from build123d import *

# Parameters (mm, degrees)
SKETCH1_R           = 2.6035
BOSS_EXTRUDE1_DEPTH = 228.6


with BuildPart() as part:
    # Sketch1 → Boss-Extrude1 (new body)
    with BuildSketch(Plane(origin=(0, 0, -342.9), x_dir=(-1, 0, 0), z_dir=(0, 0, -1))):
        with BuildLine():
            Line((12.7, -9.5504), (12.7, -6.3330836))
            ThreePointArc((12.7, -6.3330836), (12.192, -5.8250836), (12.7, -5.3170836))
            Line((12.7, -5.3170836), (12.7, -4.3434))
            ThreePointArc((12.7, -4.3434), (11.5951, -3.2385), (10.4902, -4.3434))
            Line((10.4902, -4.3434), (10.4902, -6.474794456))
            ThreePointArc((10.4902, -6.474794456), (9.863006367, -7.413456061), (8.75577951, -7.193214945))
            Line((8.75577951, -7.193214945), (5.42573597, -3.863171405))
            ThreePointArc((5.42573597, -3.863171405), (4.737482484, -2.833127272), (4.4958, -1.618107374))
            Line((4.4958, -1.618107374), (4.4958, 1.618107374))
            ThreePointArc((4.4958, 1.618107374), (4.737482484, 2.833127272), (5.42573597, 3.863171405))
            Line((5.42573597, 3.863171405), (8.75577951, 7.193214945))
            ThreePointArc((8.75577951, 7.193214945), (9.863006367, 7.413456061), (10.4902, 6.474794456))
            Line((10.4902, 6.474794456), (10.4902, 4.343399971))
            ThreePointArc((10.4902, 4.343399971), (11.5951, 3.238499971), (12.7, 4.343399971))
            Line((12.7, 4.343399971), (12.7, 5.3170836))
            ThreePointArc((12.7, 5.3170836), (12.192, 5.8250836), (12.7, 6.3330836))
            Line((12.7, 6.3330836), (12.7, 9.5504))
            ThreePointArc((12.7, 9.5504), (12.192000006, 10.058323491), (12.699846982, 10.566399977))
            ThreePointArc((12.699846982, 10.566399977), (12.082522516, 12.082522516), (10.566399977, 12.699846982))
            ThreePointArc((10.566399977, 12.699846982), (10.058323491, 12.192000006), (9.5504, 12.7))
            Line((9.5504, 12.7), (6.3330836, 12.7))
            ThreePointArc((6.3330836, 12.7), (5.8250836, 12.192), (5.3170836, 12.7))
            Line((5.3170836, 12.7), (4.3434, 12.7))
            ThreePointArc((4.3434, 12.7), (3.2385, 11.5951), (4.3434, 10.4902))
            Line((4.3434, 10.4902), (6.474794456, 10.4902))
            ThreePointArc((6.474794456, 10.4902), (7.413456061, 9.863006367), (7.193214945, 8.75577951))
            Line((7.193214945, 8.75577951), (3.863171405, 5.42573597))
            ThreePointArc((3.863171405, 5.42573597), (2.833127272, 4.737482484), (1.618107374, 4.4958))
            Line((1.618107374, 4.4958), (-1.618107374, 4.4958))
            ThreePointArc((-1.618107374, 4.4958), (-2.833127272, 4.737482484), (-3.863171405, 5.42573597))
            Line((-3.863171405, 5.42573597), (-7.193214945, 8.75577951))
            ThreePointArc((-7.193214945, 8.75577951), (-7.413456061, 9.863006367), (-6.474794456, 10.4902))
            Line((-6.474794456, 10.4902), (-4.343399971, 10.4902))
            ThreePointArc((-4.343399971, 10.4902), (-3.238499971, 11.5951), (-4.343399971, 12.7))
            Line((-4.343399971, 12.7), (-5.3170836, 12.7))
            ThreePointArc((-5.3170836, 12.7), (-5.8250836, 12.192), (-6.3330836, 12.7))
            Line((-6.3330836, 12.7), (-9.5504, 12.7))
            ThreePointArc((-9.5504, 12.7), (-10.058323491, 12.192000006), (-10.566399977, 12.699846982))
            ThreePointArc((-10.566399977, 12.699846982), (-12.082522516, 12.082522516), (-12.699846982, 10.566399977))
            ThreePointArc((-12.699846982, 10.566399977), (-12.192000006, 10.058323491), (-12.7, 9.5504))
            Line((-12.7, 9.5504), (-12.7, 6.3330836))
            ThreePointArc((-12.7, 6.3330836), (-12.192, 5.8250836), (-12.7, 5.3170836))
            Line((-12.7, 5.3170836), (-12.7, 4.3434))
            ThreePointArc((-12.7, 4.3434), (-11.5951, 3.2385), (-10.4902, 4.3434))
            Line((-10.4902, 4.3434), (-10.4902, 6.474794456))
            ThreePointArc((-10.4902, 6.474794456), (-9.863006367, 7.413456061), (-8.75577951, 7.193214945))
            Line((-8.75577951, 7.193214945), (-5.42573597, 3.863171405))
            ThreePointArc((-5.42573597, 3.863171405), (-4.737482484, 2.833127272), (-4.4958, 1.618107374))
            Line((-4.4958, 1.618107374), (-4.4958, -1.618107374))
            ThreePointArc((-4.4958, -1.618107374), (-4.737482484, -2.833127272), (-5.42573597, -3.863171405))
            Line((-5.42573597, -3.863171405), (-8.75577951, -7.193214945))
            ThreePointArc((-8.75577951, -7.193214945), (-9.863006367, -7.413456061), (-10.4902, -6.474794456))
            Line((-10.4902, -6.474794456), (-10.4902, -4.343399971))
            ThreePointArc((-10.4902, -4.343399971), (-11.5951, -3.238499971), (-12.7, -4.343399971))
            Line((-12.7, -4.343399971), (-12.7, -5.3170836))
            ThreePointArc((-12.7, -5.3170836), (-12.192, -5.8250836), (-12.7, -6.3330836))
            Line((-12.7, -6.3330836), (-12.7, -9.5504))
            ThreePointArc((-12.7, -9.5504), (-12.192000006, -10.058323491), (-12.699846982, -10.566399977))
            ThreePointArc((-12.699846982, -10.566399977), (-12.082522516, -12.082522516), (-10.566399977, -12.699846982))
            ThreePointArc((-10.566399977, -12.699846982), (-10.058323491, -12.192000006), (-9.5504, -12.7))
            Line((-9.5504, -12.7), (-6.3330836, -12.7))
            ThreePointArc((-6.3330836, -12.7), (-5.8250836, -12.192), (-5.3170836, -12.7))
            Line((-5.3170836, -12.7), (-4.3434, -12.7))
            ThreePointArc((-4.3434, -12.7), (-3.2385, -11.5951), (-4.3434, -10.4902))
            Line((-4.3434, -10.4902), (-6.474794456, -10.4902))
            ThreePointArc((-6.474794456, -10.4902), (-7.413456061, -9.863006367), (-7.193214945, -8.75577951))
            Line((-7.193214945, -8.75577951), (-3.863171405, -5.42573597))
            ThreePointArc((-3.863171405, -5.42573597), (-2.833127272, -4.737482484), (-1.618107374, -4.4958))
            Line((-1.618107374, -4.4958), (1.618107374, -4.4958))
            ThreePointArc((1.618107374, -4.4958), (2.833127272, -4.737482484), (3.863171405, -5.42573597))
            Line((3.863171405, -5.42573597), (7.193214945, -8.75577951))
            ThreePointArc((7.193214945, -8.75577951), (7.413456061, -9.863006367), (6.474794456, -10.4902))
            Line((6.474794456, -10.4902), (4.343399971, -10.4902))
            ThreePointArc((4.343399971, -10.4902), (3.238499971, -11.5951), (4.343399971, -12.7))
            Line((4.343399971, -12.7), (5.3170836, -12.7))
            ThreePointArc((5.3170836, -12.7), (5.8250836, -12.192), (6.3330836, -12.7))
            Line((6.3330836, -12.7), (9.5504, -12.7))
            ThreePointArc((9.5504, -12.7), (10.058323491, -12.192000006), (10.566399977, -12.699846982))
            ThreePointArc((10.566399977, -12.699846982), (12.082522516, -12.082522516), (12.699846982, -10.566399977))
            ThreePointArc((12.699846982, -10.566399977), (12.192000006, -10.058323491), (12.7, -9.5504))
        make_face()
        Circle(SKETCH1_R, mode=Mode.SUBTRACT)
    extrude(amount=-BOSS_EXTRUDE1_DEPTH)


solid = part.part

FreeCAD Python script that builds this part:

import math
import FreeCAD as App
import Part
import Sketcher
from FreeCAD import Vector
Q = App.Units.Quantity

doc = App.newDocument("Part")
body = doc.addObject("PartDesign::Body", "Body")

sketch1 = body.newObject("Sketcher::SketchObject", "Sketch")
sketch1.AttachmentSupport = (doc.getObject("XY_Plane"), [""])
sketch1.MapMode = "FlatFace"
sketch1.AttachmentOffset = App.Placement(Vector(0, 0, -13.5 * 25.4), App.Rotation())
sketch1.addGeometry([
    Part.LineSegment(Vector(-12.7, -9.6, 0), Vector(-12.7, -6.3, 0)),
    Part.ArcOfCircle(Part.Circle(Vector(-12.7, -5.8, 0), Vector(0, 0, 1), 0.5), math.radians(-90), math.radians(90)),
    Part.LineSegment(Vector(-12.7, -5.3, 0), Vector(-12.7, -4.3, 0)),
    Part.ArcOfCircle(Part.Circle(Vector(-11.6, -4.3, 0), Vector(0, 0, 1), 1.1), math.radians(0), math.radians(180)),
    Part.LineSegment(Vector(-10.5, -4.3, 0), Vector(-10.5, -6.5, 0)),
    Part.ArcOfCircle(Part.Circle(Vector(-9.5, -6.5, 0), Vector(0, 0, 1), 1), math.radians(180), math.radians(315)),
    Part.LineSegment(Vector(-8.8, -7.2, 0), Vector(-5.4, -3.9, 0)),
    Part.ArcOfCircle(Part.Circle(Vector(-7.7, -1.6, 0), Vector(0, 0, 1), 3.2), math.radians(-45), math.radians(0)),
    Part.LineSegment(Vector(-4.5, -1.6, 0), Vector(-4.5, 1.6, 0)),
    Part.ArcOfCircle(Part.Circle(Vector(-7.7, 1.6, 0), Vector(0, 0, 1), 3.2), math.radians(0), math.radians(45)),
    Part.LineSegment(Vector(-5.4, 3.9, 0), Vector(-8.8, 7.2, 0)),
    Part.ArcOfCircle(Part.Circle(Vector(-9.5, 6.5, 0), Vector(0, 0, 1), 1), math.radians(45), math.radians(180)),
    Part.LineSegment(Vector(-10.5, 6.5, 0), Vector(-10.5, 4.3, 0)),
    Part.ArcOfCircle(Part.Circle(Vector(-11.6, 4.3, 0), Vector(0, 0, 1), 1.1), math.radians(180), math.radians(360)),
    Part.LineSegment(Vector(-12.7, 4.3, 0), Vector(-12.7, 5.3, 0)),
    Part.ArcOfCircle(Part.Circle(Vector(-12.7, 5.8, 0), Vector(0, 0, 1), 0.5), math.radians(-90), math.radians(90)),
    Part.LineSegment(Vector(-12.7, 6.3, 0), Vector(-12.7, 9.6, 0)),
    Part.ArcOfCircle(Part.Circle(Vector(-12.7, 10.1, 0), Vector(0, 0, 1), 0.5), math.radians(-90), math.radians(90)),
    Part.ArcOfCircle(Part.Circle(Vector(-10.6, 10.6, 0), Vector(0, 0, 1), 2.1), math.radians(89), math.radians(181)),
    Part.ArcOfCircle(Part.Circle(Vector(-10.1, 12.7, 0), Vector(0, 0, 1), 0.5), math.radians(-180), math.radians(0)),
    Part.LineSegment(Vector(-9.6, 12.7, 0), Vector(-6.3, 12.7, 0)),
    Part.ArcOfCircle(Part.Circle(Vector(-5.8, 12.7, 0), Vector(0, 0, 1), 0.5), math.radians(180), math.radians(360)),
    Part.LineSegment(Vector(-5.3, 12.7, 0), Vector(-4.3, 12.7, 0)),
    Part.ArcOfCircle(Part.Circle(Vector(-4.3, 11.6, 0), Vector(0, 0, 1), 1.1), math.radians(-90), math.radians(90)),
    Part.LineSegment(Vector(-4.3, 10.5, 0), Vector(-6.5, 10.5, 0)),
    Part.ArcOfCircle(Part.Circle(Vector(-6.5, 9.5, 0), Vector(0, 0, 1), 1), math.radians(90), math.radians(225)),
    Part.LineSegment(Vector(-7.2, 8.8, 0), Vector(-3.9, 5.4, 0)),
    Part.ArcOfCircle(Part.Circle(Vector(-1.6, 7.7, 0), Vector(0, 0, 1), 3.2), math.radians(-135), math.radians(-90)),
    Part.LineSegment(Vector(-1.6, 4.5, 0), Vector(1.6, 4.5, 0)),
    Part.ArcOfCircle(Part.Circle(Vector(1.6, 7.7, 0), Vector(0, 0, 1), 3.2), math.radians(-90), math.radians(-45)),
    Part.LineSegment(Vector(3.9, 5.4, 0), Vector(7.2, 8.8, 0)),
    Part.ArcOfCircle(Part.Circle(Vector(6.5, 9.5, 0), Vector(0, 0, 1), 1), math.radians(-45), math.radians(90)),
    Part.LineSegment(Vector(6.5, 10.5, 0), Vector(4.3, 10.5, 0)),
    Part.ArcOfCircle(Part.Circle(Vector(4.3, 11.6, 0), Vector(0, 0, 1), 1.1), math.radians(90), math.radians(270)),
    Part.LineSegment(Vector(4.3, 12.7, 0), Vector(5.3, 12.7, 0)),
    Part.ArcOfCircle(Part.Circle(Vector(5.8, 12.7, 0), Vector(0, 0, 1), 0.5), math.radians(180), math.radians(360)),
    Part.LineSegment(Vector(6.3, 12.7, 0), Vector(9.6, 12.7, 0)),
    Part.ArcOfCircle(Part.Circle(Vector(10.1, 12.7, 0), Vector(0, 0, 1), 0.5), math.radians(180), math.radians(360)),
    Part.ArcOfCircle(Part.Circle(Vector(10.6, 10.6, 0), Vector(0, 0, 1), 2.1), math.radians(-1), math.radians(91)),
    Part.ArcOfCircle(Part.Circle(Vector(12.7, 10.1, 0), Vector(0, 0, 1), 0.5), math.radians(90), math.radians(270)),
    Part.LineSegment(Vector(12.7, 9.6, 0), Vector(12.7, 6.3, 0)),
    Part.ArcOfCircle(Part.Circle(Vector(12.7, 5.8, 0), Vector(0, 0, 1), 0.5), math.radians(90), math.radians(270)),
    Part.LineSegment(Vector(12.7, 5.3, 0), Vector(12.7, 4.3, 0)),
    Part.ArcOfCircle(Part.Circle(Vector(11.6, 4.3, 0), Vector(0, 0, 1), 1.1), math.radians(180), math.radians(360)),
    Part.LineSegment(Vector(10.5, 4.3, 0), Vector(10.5, 6.5, 0)),
    Part.ArcOfCircle(Part.Circle(Vector(9.5, 6.5, 0), Vector(0, 0, 1), 1), math.radians(0), math.radians(135)),
    Part.LineSegment(Vector(8.8, 7.2, 0), Vector(5.4, 3.9, 0)),
    Part.ArcOfCircle(Part.Circle(Vector(7.7, 1.6, 0), Vector(0, 0, 1), 3.2), math.radians(135), math.radians(180)),
    Part.LineSegment(Vector(4.5, 1.6, 0), Vector(4.5, -1.6, 0)),
    Part.ArcOfCircle(Part.Circle(Vector(7.7, -1.6, 0), Vector(0, 0, 1), 3.2), math.radians(180), math.radians(225)),
    Part.LineSegment(Vector(5.4, -3.9, 0), Vector(8.8, -7.2, 0)),
    Part.ArcOfCircle(Part.Circle(Vector(9.5, -6.5, 0), Vector(0, 0, 1), 1), math.radians(-135), math.radians(0)),
    Part.LineSegment(Vector(10.5, -6.5, 0), Vector(10.5, -4.3, 0)),
    Part.ArcOfCircle(Part.Circle(Vector(11.6, -4.3, 0), Vector(0, 0, 1), 1.1), math.radians(0), math.radians(180)),
    Part.LineSegment(Vector(12.7, -4.3, 0), Vector(12.7, -5.3, 0)),
    Part.ArcOfCircle(Part.Circle(Vector(12.7, -5.8, 0), Vector(0, 0, 1), 0.5), math.radians(90), math.radians(270)),
    Part.LineSegment(Vector(12.7, -6.3, 0), Vector(12.7, -9.6, 0)),
    Part.ArcOfCircle(Part.Circle(Vector(12.7, -10.1, 0), Vector(0, 0, 1), 0.5), math.radians(90), math.radians(270)),
    Part.ArcOfCircle(Part.Circle(Vector(10.6, -10.6, 0), Vector(0, 0, 1), 2.1), math.radians(-91), math.radians(1)),
    Part.ArcOfCircle(Part.Circle(Vector(10.1, -12.7, 0), Vector(0, 0, 1), 0.5), math.radians(0), math.radians(180)),
    Part.LineSegment(Vector(9.6, -12.7, 0), Vector(6.3, -12.7, 0)),
    Part.ArcOfCircle(Part.Circle(Vector(5.8, -12.7, 0), Vector(0, 0, 1), 0.5), math.radians(0), math.radians(180)),
    Part.LineSegment(Vector(5.3, -12.7, 0), Vector(4.3, -12.7, 0)),
    Part.ArcOfCircle(Part.Circle(Vector(4.3, -11.6, 0), Vector(0, 0, 1), 1.1), math.radians(90), math.radians(270)),
    Part.LineSegment(Vector(4.3, -10.5, 0), Vector(6.5, -10.5, 0)),
    Part.ArcOfCircle(Part.Circle(Vector(6.5, -9.5, 0), Vector(0, 0, 1), 1), math.radians(-90), math.radians(45)),
    Part.LineSegment(Vector(7.2, -8.8, 0), Vector(3.9, -5.4, 0)),
    Part.ArcOfCircle(Part.Circle(Vector(1.6, -7.7, 0), Vector(0, 0, 1), 3.2), math.radians(45), math.radians(90)),
    Part.LineSegment(Vector(1.6, -4.5, 0), Vector(-1.6, -4.5, 0)),
    Part.ArcOfCircle(Part.Circle(Vector(-1.6, -7.7, 0), Vector(0, 0, 1), 3.2), math.radians(90), math.radians(135)),
    Part.LineSegment(Vector(-3.9, -5.4, 0), Vector(-7.2, -8.8, 0)),
    Part.ArcOfCircle(Part.Circle(Vector(-6.5, -9.5, 0), Vector(0, 0, 1), 1), math.radians(135), math.radians(270)),
    Part.LineSegment(Vector(-6.5, -10.5, 0), Vector(-4.3, -10.5, 0)),
    Part.ArcOfCircle(Part.Circle(Vector(-4.3, -11.6, 0), Vector(0, 0, 1), 1.1), math.radians(-90), math.radians(90)),
    Part.LineSegment(Vector(-4.3, -12.7, 0), Vector(-5.3, -12.7, 0)),
    Part.ArcOfCircle(Part.Circle(Vector(-5.8, -12.7, 0), Vector(0, 0, 1), 0.5), math.radians(0), math.radians(180)),
    Part.LineSegment(Vector(-6.3, -12.7, 0), Vector(-9.6, -12.7, 0)),
    Part.ArcOfCircle(Part.Circle(Vector(-10.1, -12.7, 0), Vector(0, 0, 1), 0.5), math.radians(0), math.radians(180)),
    Part.ArcOfCircle(Part.Circle(Vector(-10.6, -10.6, 0), Vector(0, 0, 1), 2.1), math.radians(179), math.radians(271)),
    Part.ArcOfCircle(Part.Circle(Vector(-12.7, -10.1, 0), Vector(0, 0, 1), 0.5), math.radians(-90), math.radians(90)),
    Part.Circle(Vector(0, 0, 0), Vector(0, 0, 1), 2.6),
], False)
sketch1.addConstraint([
    Sketcher.Constraint("Coincident", 0, 2, 1, 1),
    Sketcher.Constraint("Coincident", 1, 2, 2, 1),
    Sketcher.Constraint("Tangent", 2, 2, 3, 2),
    Sketcher.Constraint("Tangent", 3, 1, 4, 1),
    Sketcher.Constraint("Tangent", 4, 2, 5, 1),
    Sketcher.Constraint("Tangent", 5, 2, 6, 1),
    Sketcher.Constraint("Tangent", 6, 2, 7, 1),
    Sketcher.Constraint("Tangent", 7, 2, 8, 1),
    Sketcher.Constraint("Tangent", 8, 2, 9, 1),
    Sketcher.Constraint("Tangent", 9, 2, 10, 1),
    Sketcher.Constraint("Tangent", 10, 2, 11, 1),
    Sketcher.Constraint("Tangent", 11, 2, 12, 1),
    Sketcher.Constraint("Tangent", 12, 2, 13, 2),
    Sketcher.Constraint("Tangent", 13, 1, 14, 1),
    Sketcher.Constraint("Coincident", 14, 2, 15, 1),
    Sketcher.Constraint("Coincident", 15, 2, 16, 1),
    Sketcher.Constraint("Coincident", 16, 2, 17, 1),
    Sketcher.Constraint("Coincident", 17, 2, 18, 2),
    Sketcher.Constraint("Coincident", 18, 1, 19, 1),
    Sketcher.Constraint("Coincident", 19, 2, 20, 1),
    Sketcher.Constraint("Coincident", 20, 2, 21, 1),
    Sketcher.Constraint("Coincident", 21, 2, 22, 1),
    Sketcher.Constraint("Tangent", 22, 2, 23, 2),
    Sketcher.Constraint("Tangent", 23, 1, 24, 1),
    Sketcher.Constraint("Tangent", 24, 2, 25, 1),
    Sketcher.Constraint("Tangent", 25, 2, 26, 1),
    Sketcher.Constraint("Tangent", 26, 2, 27, 1),
    Sketcher.Constraint("Tangent", 27, 2, 28, 1),
    Sketcher.Constraint("Tangent", 28, 2, 29, 1),
    Sketcher.Constraint("Tangent", 29, 2, 30, 1),
    Sketcher.Constraint("Tangent", 30, 2, 31, 1),
    Sketcher.Constraint("Tangent", 31, 2, 32, 1),
    Sketcher.Constraint("Tangent", 32, 2, 33, 2),
    Sketcher.Constraint("Tangent", 33, 1, 34, 1),
    Sketcher.Constraint("Coincident", 34, 2, 35, 1),
    Sketcher.Constraint("Coincident", 35, 2, 36, 1),
    Sketcher.Constraint("Coincident", 36, 2, 37, 1),
    Sketcher.Constraint("Coincident", 37, 2, 38, 2),
    Sketcher.Constraint("Coincident", 38, 1, 39, 1),
    Sketcher.Constraint("Coincident", 39, 2, 40, 1),
    Sketcher.Constraint("Coincident", 40, 2, 41, 1),
    Sketcher.Constraint("Coincident", 41, 2, 42, 1),
    Sketcher.Constraint("Tangent", 42, 2, 43, 2),
    Sketcher.Constraint("Tangent", 43, 1, 44, 1),
    Sketcher.Constraint("Tangent", 44, 2, 45, 1),
    Sketcher.Constraint("Tangent", 45, 2, 46, 1),
    Sketcher.Constraint("Tangent", 46, 2, 47, 1),
    Sketcher.Constraint("Tangent", 47, 2, 48, 1),
    Sketcher.Constraint("Tangent", 48, 2, 49, 1),
    Sketcher.Constraint("Tangent", 49, 2, 50, 1),
    Sketcher.Constraint("Tangent", 50, 2, 51, 1),
    Sketcher.Constraint("Tangent", 51, 2, 52, 1),
    Sketcher.Constraint("Tangent", 52, 2, 53, 2),
    Sketcher.Constraint("Tangent", 53, 1, 54, 1),
    Sketcher.Constraint("Coincident", 54, 2, 55, 1),
    Sketcher.Constraint("Coincident", 55, 2, 56, 1),
    Sketcher.Constraint("Coincident", 56, 2, 57, 1),
    Sketcher.Constraint("Coincident", 57, 2, 58, 2),
    Sketcher.Constraint("Coincident", 58, 1, 59, 1),
    Sketcher.Constraint("Coincident", 59, 2, 60, 1),
    Sketcher.Constraint("Coincident", 60, 2, 61, 1),
    Sketcher.Constraint("Coincident", 61, 2, 62, 1),
    Sketcher.Constraint("Tangent", 62, 2, 63, 2),
    Sketcher.Constraint("Tangent", 63, 1, 64, 1),
    Sketcher.Constraint("Tangent", 64, 2, 65, 1),
    Sketcher.Constraint("Tangent", 65, 2, 66, 1),
    Sketcher.Constraint("Tangent", 66, 2, 67, 1),
    Sketcher.Constraint("Tangent", 67, 2, 68, 1),
    Sketcher.Constraint("Tangent", 68, 2, 69, 1),
    Sketcher.Constraint("Tangent", 69, 2, 70, 1),
    Sketcher.Constraint("Tangent", 70, 2, 71, 1),
    Sketcher.Constraint("Tangent", 71, 2, 72, 1),
    Sketcher.Constraint("Tangent", 72, 2, 73, 2),
    Sketcher.Constraint("Tangent", 73, 1, 74, 1),
    Sketcher.Constraint("Coincident", 74, 2, 75, 1),
    Sketcher.Constraint("Coincident", 75, 2, 76, 1),
    Sketcher.Constraint("Coincident", 76, 2, 77, 1),
    Sketcher.Constraint("Coincident", 77, 2, 78, 2),
    Sketcher.Constraint("Coincident", 78, 1, 79, 1),
    Sketcher.Constraint("Coincident", 79, 2, 0, 1),
    Sketcher.Constraint("Vertical", 0),
    Sketcher.Constraint("Vertical", 2),
    Sketcher.Constraint("Vertical", 4),
    Sketcher.Constraint("Vertical", 8),
    Sketcher.Constraint("Vertical", 12),
    Sketcher.Constraint("Vertical", 14),
    Sketcher.Constraint("Vertical", 16),
    Sketcher.Constraint("Horizontal", 20),
    Sketcher.Constraint("Horizontal", 22),
    Sketcher.Constraint("Horizontal", 24),
    Sketcher.Constraint("Horizontal", 28),
    Sketcher.Constraint("Horizontal", 32),
    Sketcher.Constraint("Horizontal", 34),
    Sketcher.Constraint("Horizontal", 36),
    Sketcher.Constraint("Vertical", 40),
    Sketcher.Constraint("Vertical", 42),
    Sketcher.Constraint("Vertical", 44),
    Sketcher.Constraint("Vertical", 48),
    Sketcher.Constraint("Vertical", 52),
    Sketcher.Constraint("Vertical", 54),
    Sketcher.Constraint("Vertical", 56),
    Sketcher.Constraint("Horizontal", 60),
    Sketcher.Constraint("Horizontal", 62),
    Sketcher.Constraint("Horizontal", 64),
    Sketcher.Constraint("Horizontal", 68),
    Sketcher.Constraint("Horizontal", 72),
    Sketcher.Constraint("Horizontal", 74),
    Sketcher.Constraint("Horizontal", 76),
    Sketcher.Constraint("Coincident", 80, 3, -1, 1),
    Sketcher.Constraint("Equal", 7, 9),
    Sketcher.Constraint("Equal", 5, 11),
    Sketcher.Constraint("Equal", 3, 13),
    Sketcher.Constraint("Equal", 1, 15),
    Sketcher.Constraint("Equal", 15, 17),
    Sketcher.Constraint("Equal", 17, 19),
    Sketcher.Constraint("Equal", 19, 21),
    Sketcher.Constraint("Equal", 13, 23),
    Sketcher.Constraint("Equal", 11, 25),
    Sketcher.Constraint("Equal", 9, 27),
    Sketcher.Constraint("Equal", 27, 29),
    Sketcher.Constraint("Equal", 25, 31),
    Sketcher.Constraint("Equal", 23, 33),
    Sketcher.Constraint("Equal", 21, 35),
    Sketcher.Constraint("Equal", 35, 37),
    Sketcher.Constraint("Equal", 18, 38),
    Sketcher.Constraint("Equal", 37, 39),
    Sketcher.Constraint("Equal", 39, 41),
    Sketcher.Constraint("Equal", 33, 43),
    Sketcher.Constraint("Equal", 31, 45),
    Sketcher.Constraint("Equal", 29, 47),
    Sketcher.Constraint("Equal", 47, 49),
    Sketcher.Constraint("Equal", 45, 51),
    Sketcher.Constraint("Equal", 43, 53),
    Sketcher.Constraint("Equal", 41, 55),
    Sketcher.Constraint("Equal", 55, 57),
    Sketcher.Constraint("Equal", 38, 58),
    Sketcher.Constraint("Equal", 57, 59),
    Sketcher.Constraint("Equal", 59, 61),
    Sketcher.Constraint("Equal", 53, 63),
    Sketcher.Constraint("Equal", 51, 65),
    Sketcher.Constraint("Equal", 49, 67),
    Sketcher.Constraint("Equal", 67, 69),
    Sketcher.Constraint("Equal", 65, 71),
    Sketcher.Constraint("Equal", 63, 73),
    Sketcher.Constraint("Equal", 61, 75),
    Sketcher.Constraint("Equal", 75, 77),
    Sketcher.Constraint("Equal", 58, 78),
    Sketcher.Constraint("Equal", 77, 79),
    Sketcher.Constraint("Symmetric", 1, 3, 41, 3, -1, 1),
    Sketcher.Constraint("Symmetric", 3, 3, 43, 3, -1, 1),
    Sketcher.Constraint("Symmetric", 7, 3, 47, 3, -1, 1),
    Sketcher.Constraint("Symmetric", 11, 3, 51, 3, -1, 1),
    Sketcher.Constraint("Symmetric", 15, 3, 55, 3, -1, 1),
    Sketcher.Constraint("Symmetric", 17, 3, 57, 3, -1, 1),
    Sketcher.Constraint("Symmetric", 18, 3, 58, 3, -1, 1),
    Sketcher.Constraint("Symmetric", 19, 3, 59, 3, -1, 1),
    Sketcher.Constraint("Symmetric", 21, 3, 61, 3, -1, 1),
    Sketcher.Constraint("Symmetric", 23, 3, 63, 3, -1, 1),
    Sketcher.Constraint("Symmetric", 27, 3, 67, 3, -1, 1),
    Sketcher.Constraint("Symmetric", 31, 3, 71, 3, -1, 1),
    Sketcher.Constraint("Symmetric", 35, 3, 75, 3, -1, 1),
    Sketcher.Constraint("Symmetric", 37, 3, 77, 3, -1, 1),
    Sketcher.Constraint("Symmetric", 38, 3, 78, 3, -1, 1),
    Sketcher.Constraint("Symmetric", 39, 3, 79, 3, -1, 1),
    Sketcher.Constraint("Symmetric", 25, 3, 31, 3, -2),
    Sketcher.Constraint("Symmetric", 21, 3, 35, 3, -2),
    Sketcher.Constraint("Symmetric", 19, 3, 37, 3, -2),
    Sketcher.Constraint("Symmetric", 18, 3, 38, 3, -2),
    Sketcher.Constraint("Symmetric", 17, 3, 39, 3, -2),
    Sketcher.Constraint("Symmetric", 15, 3, 41, 3, -2),
    Sketcher.Constraint("Symmetric", 13, 3, 43, 3, -2),
    Sketcher.Constraint("Symmetric", 10, 2, 45, 2, -2),
    Sketcher.Constraint("Symmetric", 6, 2, 49, 2, -2),
    Sketcher.Constraint("Symmetric", 66, 2, 69, 2, -2),
    Sketcher.Constraint("Perpendicular", 6, 10),
    Sketcher.Constraint("Parallel", 10, 26),
    Sketcher.Constraint("Perpendicular", 26, 30),
    Sketcher.Constraint("Horizontal", 19, 3, 21, 3),
    Sketcher.Constraint("Horizontal", 3, 3, 53, 3),
    Sketcher.Constraint("Horizontal", 37, 3, 19, 2),
    Sketcher.Constraint("Horizontal", 20, 2, 21, 2),
    Sketcher.Constraint("Horizontal", 34, 2, 35, 2),
    Sketcher.Constraint("Horizontal", 77, 3, 59, 2),
    Sketcher.Constraint("Horizontal", 74, 2, 75, 2),
    Sketcher.Constraint("Vertical", 15, 3, 17, 3),
    Sketcher.Constraint("Vertical", 33, 3, 63, 3),
    Sketcher.Constraint("Vertical", 23, 3, 73, 3),
    Sketcher.Constraint("Vertical", 79, 3, 0, 2),
    Sketcher.Constraint("Vertical", 0, 2, 1, 2),
    Sketcher.Constraint("Vertical", 14, 2, 15, 2),
    Sketcher.Constraint("Vertical", 57, 3, 39, 2),
    Sketcher.Constraint("Vertical", 54, 2, 55, 2),
    Sketcher.Constraint("Equal", 76, 0),
    Sketcher.Constraint("Equal", 74, 2),
    Sketcher.Constraint("Equal", 72, 4),
    Sketcher.Constraint("Equal", 68, 8),
    Sketcher.Constraint("Equal", 10, 26),
    Sketcher.Constraint("Radius", 1, Q("0.02 in")),
    Sketcher.Constraint("Radius", 5, Q("0.04 in")),
    Sketcher.Constraint("Diameter", 80, Q("0.205 in")),
    Sketcher.Constraint("Radius", 7, Q("0.125 in")),
    Sketcher.Constraint("Radius", 18, Q("0.083 in")),
    Sketcher.Constraint("DistanceX", 1, 3, -1, 1, Q("0.5 in")),
    Sketcher.Constraint("DistanceY", -1, 1, 19, 3, Q("0.5 in")),
    Sketcher.Constraint("Radius", 3, Q("0.0435 in")),
    Sketcher.Constraint("DistanceY", 3, 3, -1, 1, Q("0.171 in")),
    Sketcher.Constraint("DistanceX", 7, 3, -1, 1, Q("0.302 in")),
    Sketcher.Constraint("DistanceY", -1, 1, 17, 3, Q("0.396 in")),
    Sketcher.Constraint("DistanceX", 18, 3, -1, 1, Q("0.417 in")),
    Sketcher.Constraint("DistanceY", -1, 1, 18, 3, Q("0.417 in")),
    Sketcher.Constraint("DistanceX", 20, 1, 20, 2, Q("3.217316 mm")),
    Sketcher.Constraint("DistanceX", 24, 2, 24, 1, Q("2.131394 mm")),
])
pad1 = body.newObject("PartDesign::Pad", "Pad")
pad1.Profile = sketch1
pad1.Length = Q("9 in")

doc.recompute()
